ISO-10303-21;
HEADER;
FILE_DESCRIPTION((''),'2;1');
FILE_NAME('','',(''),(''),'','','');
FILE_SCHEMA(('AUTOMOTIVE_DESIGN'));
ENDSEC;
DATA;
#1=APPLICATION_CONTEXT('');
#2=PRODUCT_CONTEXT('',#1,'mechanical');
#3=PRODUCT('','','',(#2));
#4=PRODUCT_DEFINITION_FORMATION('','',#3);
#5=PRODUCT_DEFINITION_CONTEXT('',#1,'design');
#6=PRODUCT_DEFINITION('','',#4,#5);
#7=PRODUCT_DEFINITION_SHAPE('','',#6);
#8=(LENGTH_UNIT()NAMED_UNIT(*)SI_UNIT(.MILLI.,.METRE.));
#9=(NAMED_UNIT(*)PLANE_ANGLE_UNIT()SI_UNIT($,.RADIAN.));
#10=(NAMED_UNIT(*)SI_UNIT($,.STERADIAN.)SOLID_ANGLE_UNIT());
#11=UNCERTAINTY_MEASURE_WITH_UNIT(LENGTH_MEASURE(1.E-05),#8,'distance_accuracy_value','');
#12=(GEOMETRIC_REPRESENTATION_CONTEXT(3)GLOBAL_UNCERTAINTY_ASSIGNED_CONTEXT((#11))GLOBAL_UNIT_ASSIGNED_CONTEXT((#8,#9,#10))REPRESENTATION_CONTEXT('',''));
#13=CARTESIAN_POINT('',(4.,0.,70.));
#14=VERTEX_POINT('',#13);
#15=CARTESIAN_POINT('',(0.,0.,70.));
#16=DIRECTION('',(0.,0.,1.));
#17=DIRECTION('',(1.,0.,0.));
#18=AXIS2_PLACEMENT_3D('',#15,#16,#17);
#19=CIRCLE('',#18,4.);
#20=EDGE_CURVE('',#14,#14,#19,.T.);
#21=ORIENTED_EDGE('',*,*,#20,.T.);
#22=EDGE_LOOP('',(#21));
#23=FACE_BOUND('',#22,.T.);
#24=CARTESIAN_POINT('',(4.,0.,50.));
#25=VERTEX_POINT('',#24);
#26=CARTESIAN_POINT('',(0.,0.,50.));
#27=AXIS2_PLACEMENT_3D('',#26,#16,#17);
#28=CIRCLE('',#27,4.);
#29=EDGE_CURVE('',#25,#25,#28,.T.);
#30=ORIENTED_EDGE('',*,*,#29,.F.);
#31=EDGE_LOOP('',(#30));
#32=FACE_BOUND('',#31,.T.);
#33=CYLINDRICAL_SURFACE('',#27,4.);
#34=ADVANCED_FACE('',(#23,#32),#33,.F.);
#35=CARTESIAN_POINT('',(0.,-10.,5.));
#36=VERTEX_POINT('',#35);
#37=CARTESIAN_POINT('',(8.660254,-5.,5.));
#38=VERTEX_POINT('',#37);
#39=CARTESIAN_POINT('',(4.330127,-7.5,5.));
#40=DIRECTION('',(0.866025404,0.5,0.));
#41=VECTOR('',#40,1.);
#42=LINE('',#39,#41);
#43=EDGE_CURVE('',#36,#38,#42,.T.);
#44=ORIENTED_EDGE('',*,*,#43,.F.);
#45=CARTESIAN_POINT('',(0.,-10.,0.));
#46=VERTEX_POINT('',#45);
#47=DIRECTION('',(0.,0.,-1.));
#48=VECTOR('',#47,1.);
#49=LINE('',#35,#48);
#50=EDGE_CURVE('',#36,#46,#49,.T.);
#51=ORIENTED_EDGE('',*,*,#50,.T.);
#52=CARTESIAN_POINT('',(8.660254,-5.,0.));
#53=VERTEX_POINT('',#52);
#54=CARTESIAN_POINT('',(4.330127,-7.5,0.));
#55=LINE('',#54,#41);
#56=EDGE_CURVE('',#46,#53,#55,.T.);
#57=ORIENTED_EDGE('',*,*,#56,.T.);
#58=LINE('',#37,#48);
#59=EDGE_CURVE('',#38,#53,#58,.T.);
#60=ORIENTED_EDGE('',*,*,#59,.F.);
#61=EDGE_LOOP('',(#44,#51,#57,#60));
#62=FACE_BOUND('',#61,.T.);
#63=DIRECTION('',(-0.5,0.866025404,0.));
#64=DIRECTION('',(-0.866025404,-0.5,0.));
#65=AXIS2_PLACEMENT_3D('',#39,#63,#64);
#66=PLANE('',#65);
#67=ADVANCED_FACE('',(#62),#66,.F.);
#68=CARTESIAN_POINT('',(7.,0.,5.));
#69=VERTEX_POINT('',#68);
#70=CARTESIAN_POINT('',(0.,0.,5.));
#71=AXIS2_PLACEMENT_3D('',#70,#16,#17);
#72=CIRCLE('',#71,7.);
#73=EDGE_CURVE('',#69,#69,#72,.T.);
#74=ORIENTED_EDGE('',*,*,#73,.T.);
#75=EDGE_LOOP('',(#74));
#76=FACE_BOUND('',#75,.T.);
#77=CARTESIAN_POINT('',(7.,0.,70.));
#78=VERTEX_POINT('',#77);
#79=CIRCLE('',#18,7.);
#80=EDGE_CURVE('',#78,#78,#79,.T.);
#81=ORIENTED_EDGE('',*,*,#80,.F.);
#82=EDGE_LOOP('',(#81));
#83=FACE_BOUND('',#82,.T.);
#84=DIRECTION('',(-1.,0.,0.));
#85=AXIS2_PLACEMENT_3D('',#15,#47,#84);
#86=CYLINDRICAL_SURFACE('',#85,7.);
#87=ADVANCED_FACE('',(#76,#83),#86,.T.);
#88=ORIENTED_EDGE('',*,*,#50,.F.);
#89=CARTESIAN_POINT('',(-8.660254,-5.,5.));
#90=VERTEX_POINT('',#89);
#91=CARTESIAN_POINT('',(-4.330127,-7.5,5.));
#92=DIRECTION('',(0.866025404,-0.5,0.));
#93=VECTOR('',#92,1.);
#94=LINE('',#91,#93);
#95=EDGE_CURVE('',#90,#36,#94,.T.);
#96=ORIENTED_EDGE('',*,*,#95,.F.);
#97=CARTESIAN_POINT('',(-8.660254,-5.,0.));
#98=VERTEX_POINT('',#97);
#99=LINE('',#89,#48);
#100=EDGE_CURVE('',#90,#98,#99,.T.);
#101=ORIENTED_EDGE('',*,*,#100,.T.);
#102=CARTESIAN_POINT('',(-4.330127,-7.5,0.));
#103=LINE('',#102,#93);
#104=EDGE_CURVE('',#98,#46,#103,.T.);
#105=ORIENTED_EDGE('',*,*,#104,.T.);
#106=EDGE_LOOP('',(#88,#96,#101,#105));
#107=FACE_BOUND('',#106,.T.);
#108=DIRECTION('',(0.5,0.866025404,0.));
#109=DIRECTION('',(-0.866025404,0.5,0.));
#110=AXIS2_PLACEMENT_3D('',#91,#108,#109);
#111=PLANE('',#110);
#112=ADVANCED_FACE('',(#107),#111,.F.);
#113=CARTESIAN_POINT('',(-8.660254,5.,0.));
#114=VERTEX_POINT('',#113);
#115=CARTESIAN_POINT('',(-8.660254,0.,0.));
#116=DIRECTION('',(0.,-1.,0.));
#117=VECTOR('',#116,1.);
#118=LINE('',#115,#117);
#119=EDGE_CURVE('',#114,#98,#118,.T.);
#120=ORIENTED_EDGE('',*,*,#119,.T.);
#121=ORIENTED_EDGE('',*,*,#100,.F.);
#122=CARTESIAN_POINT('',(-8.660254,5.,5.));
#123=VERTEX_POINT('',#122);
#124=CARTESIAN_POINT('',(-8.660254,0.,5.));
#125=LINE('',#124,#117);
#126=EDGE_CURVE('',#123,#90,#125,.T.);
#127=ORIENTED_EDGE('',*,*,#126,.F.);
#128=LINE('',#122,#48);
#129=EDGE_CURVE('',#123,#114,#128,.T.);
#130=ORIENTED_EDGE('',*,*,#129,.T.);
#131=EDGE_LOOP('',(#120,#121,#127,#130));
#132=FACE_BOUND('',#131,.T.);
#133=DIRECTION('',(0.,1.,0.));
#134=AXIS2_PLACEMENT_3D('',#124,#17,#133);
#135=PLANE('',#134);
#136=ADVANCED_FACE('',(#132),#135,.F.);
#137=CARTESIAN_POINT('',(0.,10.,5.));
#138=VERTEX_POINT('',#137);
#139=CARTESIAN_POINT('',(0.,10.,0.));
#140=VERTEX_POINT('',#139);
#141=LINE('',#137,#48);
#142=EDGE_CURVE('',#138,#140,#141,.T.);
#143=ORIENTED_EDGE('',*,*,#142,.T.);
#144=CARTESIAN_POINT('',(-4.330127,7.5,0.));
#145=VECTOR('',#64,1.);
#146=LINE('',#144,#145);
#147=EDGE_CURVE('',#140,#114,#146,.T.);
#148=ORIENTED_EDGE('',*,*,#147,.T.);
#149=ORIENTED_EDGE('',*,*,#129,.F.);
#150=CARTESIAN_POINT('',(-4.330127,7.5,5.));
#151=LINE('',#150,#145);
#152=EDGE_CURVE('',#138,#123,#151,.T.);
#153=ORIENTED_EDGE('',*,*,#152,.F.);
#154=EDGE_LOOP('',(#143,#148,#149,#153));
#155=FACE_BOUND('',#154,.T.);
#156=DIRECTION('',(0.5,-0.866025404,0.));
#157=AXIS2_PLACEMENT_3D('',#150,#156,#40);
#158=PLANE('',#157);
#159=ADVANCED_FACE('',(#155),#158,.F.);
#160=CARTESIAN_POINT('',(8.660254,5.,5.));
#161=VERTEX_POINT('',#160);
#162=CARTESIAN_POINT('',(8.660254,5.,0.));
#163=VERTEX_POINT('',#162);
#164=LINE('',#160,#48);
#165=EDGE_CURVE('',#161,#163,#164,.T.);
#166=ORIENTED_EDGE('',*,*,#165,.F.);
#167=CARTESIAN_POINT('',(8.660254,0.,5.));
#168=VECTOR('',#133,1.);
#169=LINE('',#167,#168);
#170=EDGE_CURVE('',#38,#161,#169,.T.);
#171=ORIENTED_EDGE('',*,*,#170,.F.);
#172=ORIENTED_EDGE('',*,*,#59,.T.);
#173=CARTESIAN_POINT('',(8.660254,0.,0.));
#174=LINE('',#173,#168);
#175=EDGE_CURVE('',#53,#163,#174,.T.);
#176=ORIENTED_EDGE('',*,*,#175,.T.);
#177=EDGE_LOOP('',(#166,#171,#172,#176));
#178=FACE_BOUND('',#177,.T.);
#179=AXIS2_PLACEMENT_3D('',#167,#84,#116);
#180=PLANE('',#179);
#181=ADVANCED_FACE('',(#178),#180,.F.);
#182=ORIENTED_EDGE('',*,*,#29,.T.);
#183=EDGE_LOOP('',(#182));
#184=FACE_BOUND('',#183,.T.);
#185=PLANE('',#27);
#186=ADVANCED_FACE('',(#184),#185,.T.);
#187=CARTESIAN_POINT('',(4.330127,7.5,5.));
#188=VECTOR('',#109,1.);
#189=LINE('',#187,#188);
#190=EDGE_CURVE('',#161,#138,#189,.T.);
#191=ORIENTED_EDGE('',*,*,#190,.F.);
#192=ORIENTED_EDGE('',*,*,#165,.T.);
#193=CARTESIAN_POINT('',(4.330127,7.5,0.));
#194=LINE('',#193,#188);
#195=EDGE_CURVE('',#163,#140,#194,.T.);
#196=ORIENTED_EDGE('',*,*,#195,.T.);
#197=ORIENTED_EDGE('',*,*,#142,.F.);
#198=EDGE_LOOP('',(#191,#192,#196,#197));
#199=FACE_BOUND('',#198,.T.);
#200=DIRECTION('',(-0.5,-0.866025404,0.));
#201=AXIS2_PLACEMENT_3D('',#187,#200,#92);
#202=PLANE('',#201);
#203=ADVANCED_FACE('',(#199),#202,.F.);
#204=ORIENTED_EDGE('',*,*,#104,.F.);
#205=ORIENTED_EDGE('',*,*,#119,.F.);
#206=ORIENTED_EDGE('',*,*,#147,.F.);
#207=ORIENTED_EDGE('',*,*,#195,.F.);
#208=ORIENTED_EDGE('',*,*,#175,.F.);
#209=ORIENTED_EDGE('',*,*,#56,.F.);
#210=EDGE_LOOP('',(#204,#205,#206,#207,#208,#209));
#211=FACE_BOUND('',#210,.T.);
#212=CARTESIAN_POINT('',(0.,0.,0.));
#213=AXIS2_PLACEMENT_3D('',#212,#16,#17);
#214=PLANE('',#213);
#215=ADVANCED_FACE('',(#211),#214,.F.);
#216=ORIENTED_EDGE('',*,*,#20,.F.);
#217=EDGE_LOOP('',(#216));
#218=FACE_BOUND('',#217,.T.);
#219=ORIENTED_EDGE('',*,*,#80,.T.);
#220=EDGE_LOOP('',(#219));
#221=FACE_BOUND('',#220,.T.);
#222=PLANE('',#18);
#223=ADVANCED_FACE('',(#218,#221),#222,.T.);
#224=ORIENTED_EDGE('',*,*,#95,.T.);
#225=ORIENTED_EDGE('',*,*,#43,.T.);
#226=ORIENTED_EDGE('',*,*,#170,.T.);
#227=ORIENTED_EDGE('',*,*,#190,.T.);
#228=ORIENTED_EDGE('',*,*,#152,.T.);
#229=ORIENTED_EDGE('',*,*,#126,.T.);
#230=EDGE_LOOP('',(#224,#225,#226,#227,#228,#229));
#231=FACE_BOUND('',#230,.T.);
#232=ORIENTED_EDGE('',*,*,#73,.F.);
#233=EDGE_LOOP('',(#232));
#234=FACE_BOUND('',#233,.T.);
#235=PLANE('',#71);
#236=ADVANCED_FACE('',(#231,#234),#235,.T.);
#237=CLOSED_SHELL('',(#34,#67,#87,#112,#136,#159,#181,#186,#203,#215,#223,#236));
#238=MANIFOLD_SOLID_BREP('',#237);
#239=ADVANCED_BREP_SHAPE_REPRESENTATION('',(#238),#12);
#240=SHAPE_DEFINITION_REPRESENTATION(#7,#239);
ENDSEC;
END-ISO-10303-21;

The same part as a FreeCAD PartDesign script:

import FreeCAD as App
import Part
import Sketcher
Q = App.Units.Quantity


def add_polygon(sketch, points):
    """Adds a closed chain of lines whose ends are joined by coincident constraints."""
    first, n = sketch.GeometryCount, len(points)
    for a, b in zip(points, points[1:] + points[:1]):
        sketch.addGeometry(Part.LineSegment(App.Vector(*a, 0), App.Vector(*b, 0)), False)
    for i in range(n):
        sketch.addConstraint(Sketcher.Constraint("Coincident", first + i, 2, first + (i + 1) % n, 1))

doc = App.newDocument("Part")
body = doc.addObject("PartDesign::Body", "Body")

sketch1 = doc.addObject("Sketcher::SketchObject", "Sketch")
body.addObject(sketch1)
sketch1.AttachmentSupport = (doc.XY_Plane, [""])
sketch1.MapMode = "FlatFace"
add_polygon(sketch1, [(8.660254, -5), (8.660254, 5), (0, 10), (-8.660254, 5), (-8.660254, -5), (0, -10)])
sketch1.addConstraint([
    Sketcher.Constraint("Vertical", 0),
    Sketcher.Constraint("Vertical", 3),
    Sketcher.Constraint("Symmetric", 0, 2, 3, 2, -1, 1),
    Sketcher.Constraint("Symmetric", 1, 2, 4, 2, -1, 1),
    Sketcher.Constraint("PointOnObject", 1, 2, -2),
    Sketcher.Constraint("Parallel", 2, 5),
    Sketcher.Constraint("Horizontal", 0, 2, 2, 2),
    Sketcher.Constraint("DistanceY", 0, 1, 0, 2, Q("10 mm")),
    Sketcher.Constraint("Angle", 1, Q("150 deg")),
    Sketcher.Constraint("Distance", 1, Q("10 mm")),
])
pad1 = doc.addObject("PartDesign::Pad", "Pad")
body.addObject(pad1)
pad1.Profile = sketch1
pad1.Length = 5

sketch2 = doc.addObject("Sketcher::SketchObject", "Sketch001")
body.addObject(sketch2)
sketch2.AttachmentSupport = (doc.XY_Plane, [""])
sketch2.MapMode = "FlatFace"
sketch2.AttachmentOffset = App.Placement(App.Vector(0, 0, 5), App.Rotation())
sketch2.addGeometry(Part.Circle(App.Vector(0, 0, 0), App.Vector(0, 0, 1), 7), False)
sketch2.addConstraint([
    Sketcher.Constraint("Coincident", 0, 3, -1, 1),
    Sketcher.Constraint("Diameter", 0, Q("14 mm")),
])
pad2 = doc.addObject("PartDesign::Pad", "Pad001")
body.addObject(pad2)
pad2.Profile = sketch2
pad2.Length = 65

sketch3 = doc.addObject("Sketcher::SketchObject", "Sketch002")
body.addObject(sketch3)
sketch3.AttachmentSupport = (doc.XY_Plane, [""])
sketch3.MapMode = "FlatFace"
sketch3.AttachmentOffset = App.Placement(App.Vector(0, 0, 70), App.Rotation())
sketch3.addGeometry(Part.Circle(App.Vector(0, 0, 0), App.Vector(0, 0, 1), 4), False)
sketch3.addConstraint([
    Sketcher.Constraint("Coincident", 0, 3, -1, 1),
    Sketcher.Constraint("Diameter", 0, Q("8 mm")),
])
pocket1 = doc.addObject("PartDesign::Pocket", "Pocket")
body.addObject(pocket1)
pocket1.Profile = sketch3
pocket1.Length = 20

doc.recompute()
